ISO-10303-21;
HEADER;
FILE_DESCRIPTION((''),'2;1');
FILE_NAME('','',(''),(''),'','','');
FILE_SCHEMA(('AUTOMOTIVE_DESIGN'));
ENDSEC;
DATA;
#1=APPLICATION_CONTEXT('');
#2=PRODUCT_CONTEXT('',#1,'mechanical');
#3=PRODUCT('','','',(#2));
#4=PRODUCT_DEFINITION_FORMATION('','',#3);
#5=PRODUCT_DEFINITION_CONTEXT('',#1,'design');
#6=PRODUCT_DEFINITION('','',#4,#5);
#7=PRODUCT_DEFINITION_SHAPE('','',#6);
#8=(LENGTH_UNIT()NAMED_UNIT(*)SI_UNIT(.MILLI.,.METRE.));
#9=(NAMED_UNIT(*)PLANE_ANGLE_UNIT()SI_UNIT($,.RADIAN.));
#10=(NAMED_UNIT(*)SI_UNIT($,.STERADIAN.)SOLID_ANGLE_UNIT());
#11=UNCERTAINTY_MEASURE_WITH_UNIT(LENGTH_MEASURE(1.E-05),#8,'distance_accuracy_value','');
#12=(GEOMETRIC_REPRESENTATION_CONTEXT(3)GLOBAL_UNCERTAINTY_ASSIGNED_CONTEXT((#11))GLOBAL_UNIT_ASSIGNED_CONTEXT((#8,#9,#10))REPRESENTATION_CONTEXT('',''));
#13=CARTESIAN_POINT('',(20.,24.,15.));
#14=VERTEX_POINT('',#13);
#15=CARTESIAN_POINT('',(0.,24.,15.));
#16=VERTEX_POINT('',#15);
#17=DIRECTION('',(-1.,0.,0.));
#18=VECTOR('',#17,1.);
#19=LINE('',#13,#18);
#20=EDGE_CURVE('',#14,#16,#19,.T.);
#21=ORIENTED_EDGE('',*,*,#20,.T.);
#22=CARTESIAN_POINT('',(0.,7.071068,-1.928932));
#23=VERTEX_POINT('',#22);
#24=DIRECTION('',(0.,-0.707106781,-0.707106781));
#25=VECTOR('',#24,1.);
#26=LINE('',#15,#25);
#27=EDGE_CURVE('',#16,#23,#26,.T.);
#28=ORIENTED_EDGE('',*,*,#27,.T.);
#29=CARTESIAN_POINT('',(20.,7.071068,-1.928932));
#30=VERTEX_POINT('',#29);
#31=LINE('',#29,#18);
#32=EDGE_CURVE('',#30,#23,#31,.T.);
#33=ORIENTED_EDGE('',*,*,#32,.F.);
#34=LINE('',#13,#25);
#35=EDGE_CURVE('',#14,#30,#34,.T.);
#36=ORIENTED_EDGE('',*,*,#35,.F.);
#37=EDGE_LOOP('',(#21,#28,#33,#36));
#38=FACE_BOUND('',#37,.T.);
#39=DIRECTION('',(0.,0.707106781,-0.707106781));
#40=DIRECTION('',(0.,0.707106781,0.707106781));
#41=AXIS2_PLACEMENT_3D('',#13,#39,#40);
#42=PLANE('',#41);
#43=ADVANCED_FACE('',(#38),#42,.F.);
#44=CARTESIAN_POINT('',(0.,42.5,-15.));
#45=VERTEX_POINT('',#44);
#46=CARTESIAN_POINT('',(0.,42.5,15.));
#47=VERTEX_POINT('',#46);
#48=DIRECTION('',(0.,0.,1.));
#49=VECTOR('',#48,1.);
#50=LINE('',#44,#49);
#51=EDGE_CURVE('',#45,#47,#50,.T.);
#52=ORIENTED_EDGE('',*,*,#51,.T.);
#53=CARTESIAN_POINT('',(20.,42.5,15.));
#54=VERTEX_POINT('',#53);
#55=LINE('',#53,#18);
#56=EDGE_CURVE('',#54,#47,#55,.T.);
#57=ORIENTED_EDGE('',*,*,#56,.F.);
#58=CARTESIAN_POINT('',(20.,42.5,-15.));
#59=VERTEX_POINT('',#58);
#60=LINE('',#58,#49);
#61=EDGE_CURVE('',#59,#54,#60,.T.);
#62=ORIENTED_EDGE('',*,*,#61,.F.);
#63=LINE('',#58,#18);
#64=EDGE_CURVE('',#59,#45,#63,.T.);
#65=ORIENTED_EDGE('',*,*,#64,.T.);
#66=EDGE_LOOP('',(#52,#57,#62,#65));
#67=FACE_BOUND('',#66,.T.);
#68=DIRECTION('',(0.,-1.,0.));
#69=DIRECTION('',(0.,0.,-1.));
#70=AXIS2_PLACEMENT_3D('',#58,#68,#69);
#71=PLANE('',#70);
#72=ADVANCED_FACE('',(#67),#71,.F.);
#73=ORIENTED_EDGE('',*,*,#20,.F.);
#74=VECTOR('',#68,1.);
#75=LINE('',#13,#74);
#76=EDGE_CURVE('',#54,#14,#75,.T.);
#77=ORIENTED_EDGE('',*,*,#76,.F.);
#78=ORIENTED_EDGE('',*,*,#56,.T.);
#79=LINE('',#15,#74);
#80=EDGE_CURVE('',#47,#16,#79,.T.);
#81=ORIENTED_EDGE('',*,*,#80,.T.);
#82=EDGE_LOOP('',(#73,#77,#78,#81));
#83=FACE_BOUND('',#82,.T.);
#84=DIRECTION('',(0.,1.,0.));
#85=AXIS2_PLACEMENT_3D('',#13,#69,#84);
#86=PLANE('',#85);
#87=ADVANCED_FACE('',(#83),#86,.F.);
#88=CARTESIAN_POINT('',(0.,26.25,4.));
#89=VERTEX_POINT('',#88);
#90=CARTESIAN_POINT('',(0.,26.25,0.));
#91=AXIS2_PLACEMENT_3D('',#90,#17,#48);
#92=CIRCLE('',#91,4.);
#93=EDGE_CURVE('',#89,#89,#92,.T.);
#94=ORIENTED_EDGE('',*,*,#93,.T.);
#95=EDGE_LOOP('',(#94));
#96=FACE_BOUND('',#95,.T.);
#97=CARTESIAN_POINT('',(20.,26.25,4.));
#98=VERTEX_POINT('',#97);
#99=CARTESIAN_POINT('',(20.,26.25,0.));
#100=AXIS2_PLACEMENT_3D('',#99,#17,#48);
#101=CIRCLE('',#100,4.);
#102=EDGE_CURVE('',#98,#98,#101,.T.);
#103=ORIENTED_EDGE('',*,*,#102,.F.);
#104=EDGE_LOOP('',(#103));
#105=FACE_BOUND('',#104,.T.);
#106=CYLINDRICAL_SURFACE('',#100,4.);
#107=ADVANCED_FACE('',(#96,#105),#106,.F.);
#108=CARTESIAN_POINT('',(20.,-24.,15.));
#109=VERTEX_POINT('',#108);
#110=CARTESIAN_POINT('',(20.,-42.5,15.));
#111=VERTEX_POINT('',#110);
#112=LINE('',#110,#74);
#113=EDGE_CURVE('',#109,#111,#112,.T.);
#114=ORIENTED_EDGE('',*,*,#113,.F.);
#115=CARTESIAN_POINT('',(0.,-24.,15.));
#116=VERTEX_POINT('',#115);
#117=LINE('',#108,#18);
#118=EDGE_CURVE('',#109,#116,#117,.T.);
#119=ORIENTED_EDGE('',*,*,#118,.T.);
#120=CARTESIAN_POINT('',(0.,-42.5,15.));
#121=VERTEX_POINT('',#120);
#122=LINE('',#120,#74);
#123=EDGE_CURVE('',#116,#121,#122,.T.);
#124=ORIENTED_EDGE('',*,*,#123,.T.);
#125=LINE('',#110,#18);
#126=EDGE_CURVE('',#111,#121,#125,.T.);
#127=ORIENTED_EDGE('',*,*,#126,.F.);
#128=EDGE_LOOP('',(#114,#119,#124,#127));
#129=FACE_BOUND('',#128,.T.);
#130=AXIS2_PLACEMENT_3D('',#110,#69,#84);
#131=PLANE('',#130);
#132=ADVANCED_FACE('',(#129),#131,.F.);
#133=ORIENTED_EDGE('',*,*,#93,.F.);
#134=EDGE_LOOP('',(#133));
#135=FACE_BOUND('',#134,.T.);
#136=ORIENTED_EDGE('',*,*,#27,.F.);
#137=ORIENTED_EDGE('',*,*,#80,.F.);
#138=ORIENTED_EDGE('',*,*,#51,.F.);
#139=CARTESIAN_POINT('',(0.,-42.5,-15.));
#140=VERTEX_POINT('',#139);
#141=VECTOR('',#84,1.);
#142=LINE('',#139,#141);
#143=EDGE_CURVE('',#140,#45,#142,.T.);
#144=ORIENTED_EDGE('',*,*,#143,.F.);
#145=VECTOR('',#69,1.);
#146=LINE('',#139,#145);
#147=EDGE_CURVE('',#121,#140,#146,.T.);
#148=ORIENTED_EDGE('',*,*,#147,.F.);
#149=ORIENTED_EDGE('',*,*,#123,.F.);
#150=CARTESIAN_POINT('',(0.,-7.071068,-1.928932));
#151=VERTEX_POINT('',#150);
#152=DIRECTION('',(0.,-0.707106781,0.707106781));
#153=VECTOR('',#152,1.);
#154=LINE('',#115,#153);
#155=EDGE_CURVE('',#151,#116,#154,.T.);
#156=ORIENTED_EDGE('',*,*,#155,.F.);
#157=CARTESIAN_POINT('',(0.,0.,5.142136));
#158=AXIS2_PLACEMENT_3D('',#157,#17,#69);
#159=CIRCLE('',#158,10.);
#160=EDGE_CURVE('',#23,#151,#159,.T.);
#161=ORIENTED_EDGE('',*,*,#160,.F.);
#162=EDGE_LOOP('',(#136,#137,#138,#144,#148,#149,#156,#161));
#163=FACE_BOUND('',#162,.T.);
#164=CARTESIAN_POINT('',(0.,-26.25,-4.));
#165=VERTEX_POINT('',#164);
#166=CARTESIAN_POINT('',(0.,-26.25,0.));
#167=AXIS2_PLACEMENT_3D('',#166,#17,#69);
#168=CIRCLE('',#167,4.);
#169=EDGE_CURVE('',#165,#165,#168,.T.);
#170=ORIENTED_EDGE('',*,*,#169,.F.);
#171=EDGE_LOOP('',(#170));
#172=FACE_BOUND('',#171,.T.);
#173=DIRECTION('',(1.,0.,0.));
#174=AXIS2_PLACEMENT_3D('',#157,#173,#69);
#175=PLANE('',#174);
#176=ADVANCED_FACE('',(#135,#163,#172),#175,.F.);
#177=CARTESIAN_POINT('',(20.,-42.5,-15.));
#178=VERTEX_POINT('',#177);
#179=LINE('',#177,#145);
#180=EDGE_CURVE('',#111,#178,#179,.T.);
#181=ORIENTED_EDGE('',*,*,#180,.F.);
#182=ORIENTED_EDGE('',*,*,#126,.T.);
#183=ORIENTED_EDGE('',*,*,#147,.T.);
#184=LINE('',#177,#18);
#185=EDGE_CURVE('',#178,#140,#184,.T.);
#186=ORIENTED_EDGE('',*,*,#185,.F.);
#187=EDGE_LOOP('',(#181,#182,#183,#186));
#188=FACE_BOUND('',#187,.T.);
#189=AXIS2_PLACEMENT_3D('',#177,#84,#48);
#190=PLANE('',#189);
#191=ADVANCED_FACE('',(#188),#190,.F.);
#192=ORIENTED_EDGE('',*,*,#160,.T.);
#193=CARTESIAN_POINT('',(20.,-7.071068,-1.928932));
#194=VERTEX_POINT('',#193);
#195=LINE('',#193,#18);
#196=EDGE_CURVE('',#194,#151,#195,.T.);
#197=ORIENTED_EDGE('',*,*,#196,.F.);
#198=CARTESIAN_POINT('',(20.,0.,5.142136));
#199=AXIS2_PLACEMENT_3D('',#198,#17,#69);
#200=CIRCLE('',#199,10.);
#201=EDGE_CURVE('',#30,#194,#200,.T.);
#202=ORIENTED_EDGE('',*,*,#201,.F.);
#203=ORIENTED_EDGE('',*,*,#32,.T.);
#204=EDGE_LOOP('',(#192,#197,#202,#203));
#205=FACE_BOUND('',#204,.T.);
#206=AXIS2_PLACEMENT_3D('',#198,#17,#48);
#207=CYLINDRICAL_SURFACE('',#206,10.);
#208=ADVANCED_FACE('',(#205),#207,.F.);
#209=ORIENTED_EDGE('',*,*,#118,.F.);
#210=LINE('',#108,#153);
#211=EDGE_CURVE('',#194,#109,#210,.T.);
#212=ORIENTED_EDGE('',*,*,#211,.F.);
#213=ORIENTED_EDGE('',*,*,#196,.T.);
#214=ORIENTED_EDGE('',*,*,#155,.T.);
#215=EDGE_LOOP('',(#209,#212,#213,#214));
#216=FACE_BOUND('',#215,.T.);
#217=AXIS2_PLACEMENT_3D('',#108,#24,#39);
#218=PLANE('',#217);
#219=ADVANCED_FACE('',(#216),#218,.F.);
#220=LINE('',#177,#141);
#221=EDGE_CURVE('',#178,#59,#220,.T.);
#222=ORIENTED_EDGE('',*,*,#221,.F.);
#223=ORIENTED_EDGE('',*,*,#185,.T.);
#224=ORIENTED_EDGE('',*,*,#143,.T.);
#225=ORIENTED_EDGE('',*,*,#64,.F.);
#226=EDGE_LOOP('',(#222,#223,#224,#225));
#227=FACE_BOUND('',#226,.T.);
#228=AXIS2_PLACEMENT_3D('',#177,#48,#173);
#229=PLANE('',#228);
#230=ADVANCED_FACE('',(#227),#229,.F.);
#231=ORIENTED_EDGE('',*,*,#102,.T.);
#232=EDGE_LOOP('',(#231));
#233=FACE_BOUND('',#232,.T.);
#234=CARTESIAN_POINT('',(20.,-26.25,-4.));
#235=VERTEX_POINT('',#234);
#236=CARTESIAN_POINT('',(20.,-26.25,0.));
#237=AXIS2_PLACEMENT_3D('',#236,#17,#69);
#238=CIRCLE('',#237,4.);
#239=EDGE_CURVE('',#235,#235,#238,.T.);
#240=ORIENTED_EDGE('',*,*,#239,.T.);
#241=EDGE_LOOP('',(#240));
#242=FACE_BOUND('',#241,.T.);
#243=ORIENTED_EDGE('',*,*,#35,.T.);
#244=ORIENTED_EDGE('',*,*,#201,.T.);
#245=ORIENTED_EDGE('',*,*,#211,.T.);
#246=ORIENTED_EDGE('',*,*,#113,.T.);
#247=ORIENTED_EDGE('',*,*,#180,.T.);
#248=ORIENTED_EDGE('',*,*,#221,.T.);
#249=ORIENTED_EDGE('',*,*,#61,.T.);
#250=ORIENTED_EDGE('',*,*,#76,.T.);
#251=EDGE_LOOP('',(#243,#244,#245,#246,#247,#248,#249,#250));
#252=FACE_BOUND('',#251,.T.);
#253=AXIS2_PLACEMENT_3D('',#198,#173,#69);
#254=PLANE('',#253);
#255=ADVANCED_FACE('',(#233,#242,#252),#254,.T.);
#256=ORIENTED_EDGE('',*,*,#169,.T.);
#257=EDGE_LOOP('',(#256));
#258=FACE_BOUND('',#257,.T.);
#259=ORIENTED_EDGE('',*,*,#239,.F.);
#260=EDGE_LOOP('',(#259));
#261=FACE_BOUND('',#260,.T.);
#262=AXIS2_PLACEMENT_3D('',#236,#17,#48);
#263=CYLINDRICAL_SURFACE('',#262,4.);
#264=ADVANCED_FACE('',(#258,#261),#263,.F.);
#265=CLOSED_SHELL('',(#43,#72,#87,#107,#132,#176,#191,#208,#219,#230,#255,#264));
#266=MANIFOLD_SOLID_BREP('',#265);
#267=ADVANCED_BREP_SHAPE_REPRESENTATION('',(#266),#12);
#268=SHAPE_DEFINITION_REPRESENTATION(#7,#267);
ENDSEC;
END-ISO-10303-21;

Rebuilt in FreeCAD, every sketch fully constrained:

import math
import FreeCAD as App
import Part
import Sketcher

V = App.Vector

doc = App.newDocument("Part")
body = doc.addObject("PartDesign::Body", "Body")

sketch1 = doc.addObject("Sketcher::SketchObject", "Sketch")
body.addObject(sketch1)
sketch1.AttachmentSupport = (doc.YZ_Plane, [""])
sketch1.MapMode = "FlatFace"
sketch1.addGeometry(Part.LineSegment(V(24, 15, 0), V(7, -2, 0)), False)
sketch1.addGeometry(Part.ArcOfCircle(Part.Circle(V(0, 5, 0), V(0, 0, 1), 10), math.radians(-135), math.radians(-45)), False)
sketch1.addGeometry(Part.LineSegment(V(-7, -2, 0), V(-24, 15, 0)), False)
sketch1.addGeometry(Part.LineSegment(V(-24, 15, 0), V(-42, 15, 0)), False)
sketch1.addGeometry(Part.LineSegment(V(-42, 15, 0), V(-42, -15, 0)), False)
sketch1.addGeometry(Part.LineSegment(V(-42, -15, 0), V(42, -15, 0)), False)
sketch1.addGeometry(Part.LineSegment(V(42, -15, 0), V(42, 15, 0)), False)
sketch1.addGeometry(Part.LineSegment(V(42, 15, 0), V(24, 15, 0)), False)
sketch1.addConstraint(Sketcher.Constraint("Tangent", 0, 2, 1, 2))
sketch1.addConstraint(Sketcher.Constraint("Tangent", 1, 1, 2, 1))
sketch1.addConstraint(Sketcher.Constraint("Coincident", 2, 2, 3, 1))
sketch1.addConstraint(Sketcher.Constraint("Coincident", 3, 2, 4, 1))
sketch1.addConstraint(Sketcher.Constraint("Coincident", 4, 2, 5, 1))
sketch1.addConstraint(Sketcher.Constraint("Coincident", 5, 2, 6, 1))
sketch1.addConstraint(Sketcher.Constraint("Coincident", 6, 2, 7, 1))
sketch1.addConstraint(Sketcher.Constraint("Coincident", 7, 2, 0, 1))
sketch1.addConstraint(Sketcher.Constraint("Horizontal", 3))
sketch1.addConstraint(Sketcher.Constraint("Vertical", 4))
sketch1.addConstraint(Sketcher.Constraint("Horizontal", 5))
sketch1.addConstraint(Sketcher.Constraint("Vertical", 6))
sketch1.addConstraint(Sketcher.Constraint("Horizontal", 7))
sketch1.addConstraint(Sketcher.Constraint("Symmetric", 3, 2, 5, 2, -1, 1))
sketch1.addConstraint(Sketcher.Constraint("Symmetric", 0, 2, 1, 1, -2))
sketch1.addConstraint(Sketcher.Constraint("Perpendicular", 0, 2))
sketch1.addConstraint(Sketcher.Constraint("Horizontal", 3, 2, 6, 2))
sketch1.addConstraint(Sketcher.Constraint("Radius", 1, 10.0))
sketch1.addConstraint(Sketcher.Constraint("DistanceX", 5, 1, 5, 2, 85.0))
sketch1.addConstraint(Sketcher.Constraint("DistanceY", 4, 2, 4, 1, 30.0))
sketch1.addConstraint(Sketcher.Constraint("DistanceX", 3, 2, 3, 1, 18.5))
pad1 = doc.addObject("PartDesign::Pad", "Pad")
body.addObject(pad1)
pad1.Profile = sketch1
pad1.Length = 20

sketch2 = doc.addObject("Sketcher::SketchObject", "Sketch001")
body.addObject(sketch2)
sketch2.AttachmentSupport = (doc.YZ_Plane, [""])
sketch2.MapMode = "FlatFace"
sketch2.addGeometry(Part.Circle(V(26.2, 0, 0), V(0, 0, 1), 4), False)
sketch2.addGeometry(Part.Circle(V(-26.2, 0, 0), V(0, 0, 1), 4), False)
sketch2.addConstraint(Sketcher.Constraint("Equal", 0, 1))
sketch2.addConstraint(Sketcher.Constraint("Symmetric", 0, 3, 1, 3, -1, 1))
sketch2.addConstraint(Sketcher.Constraint("PointOnObject", 0, 3, -1))
sketch2.addConstraint(Sketcher.Constraint("Diameter", 0, 8.0))
sketch2.addConstraint(Sketcher.Constraint("DistanceX", 1, 3, 0, 3, 52.5))
pocket1 = doc.addObject("PartDesign::Pocket", "Pocket")
body.addObject(pocket1)
pocket1.Profile = sketch2
pocket1.Length = 20
pocket1.Reversed = True

doc.recompute()
